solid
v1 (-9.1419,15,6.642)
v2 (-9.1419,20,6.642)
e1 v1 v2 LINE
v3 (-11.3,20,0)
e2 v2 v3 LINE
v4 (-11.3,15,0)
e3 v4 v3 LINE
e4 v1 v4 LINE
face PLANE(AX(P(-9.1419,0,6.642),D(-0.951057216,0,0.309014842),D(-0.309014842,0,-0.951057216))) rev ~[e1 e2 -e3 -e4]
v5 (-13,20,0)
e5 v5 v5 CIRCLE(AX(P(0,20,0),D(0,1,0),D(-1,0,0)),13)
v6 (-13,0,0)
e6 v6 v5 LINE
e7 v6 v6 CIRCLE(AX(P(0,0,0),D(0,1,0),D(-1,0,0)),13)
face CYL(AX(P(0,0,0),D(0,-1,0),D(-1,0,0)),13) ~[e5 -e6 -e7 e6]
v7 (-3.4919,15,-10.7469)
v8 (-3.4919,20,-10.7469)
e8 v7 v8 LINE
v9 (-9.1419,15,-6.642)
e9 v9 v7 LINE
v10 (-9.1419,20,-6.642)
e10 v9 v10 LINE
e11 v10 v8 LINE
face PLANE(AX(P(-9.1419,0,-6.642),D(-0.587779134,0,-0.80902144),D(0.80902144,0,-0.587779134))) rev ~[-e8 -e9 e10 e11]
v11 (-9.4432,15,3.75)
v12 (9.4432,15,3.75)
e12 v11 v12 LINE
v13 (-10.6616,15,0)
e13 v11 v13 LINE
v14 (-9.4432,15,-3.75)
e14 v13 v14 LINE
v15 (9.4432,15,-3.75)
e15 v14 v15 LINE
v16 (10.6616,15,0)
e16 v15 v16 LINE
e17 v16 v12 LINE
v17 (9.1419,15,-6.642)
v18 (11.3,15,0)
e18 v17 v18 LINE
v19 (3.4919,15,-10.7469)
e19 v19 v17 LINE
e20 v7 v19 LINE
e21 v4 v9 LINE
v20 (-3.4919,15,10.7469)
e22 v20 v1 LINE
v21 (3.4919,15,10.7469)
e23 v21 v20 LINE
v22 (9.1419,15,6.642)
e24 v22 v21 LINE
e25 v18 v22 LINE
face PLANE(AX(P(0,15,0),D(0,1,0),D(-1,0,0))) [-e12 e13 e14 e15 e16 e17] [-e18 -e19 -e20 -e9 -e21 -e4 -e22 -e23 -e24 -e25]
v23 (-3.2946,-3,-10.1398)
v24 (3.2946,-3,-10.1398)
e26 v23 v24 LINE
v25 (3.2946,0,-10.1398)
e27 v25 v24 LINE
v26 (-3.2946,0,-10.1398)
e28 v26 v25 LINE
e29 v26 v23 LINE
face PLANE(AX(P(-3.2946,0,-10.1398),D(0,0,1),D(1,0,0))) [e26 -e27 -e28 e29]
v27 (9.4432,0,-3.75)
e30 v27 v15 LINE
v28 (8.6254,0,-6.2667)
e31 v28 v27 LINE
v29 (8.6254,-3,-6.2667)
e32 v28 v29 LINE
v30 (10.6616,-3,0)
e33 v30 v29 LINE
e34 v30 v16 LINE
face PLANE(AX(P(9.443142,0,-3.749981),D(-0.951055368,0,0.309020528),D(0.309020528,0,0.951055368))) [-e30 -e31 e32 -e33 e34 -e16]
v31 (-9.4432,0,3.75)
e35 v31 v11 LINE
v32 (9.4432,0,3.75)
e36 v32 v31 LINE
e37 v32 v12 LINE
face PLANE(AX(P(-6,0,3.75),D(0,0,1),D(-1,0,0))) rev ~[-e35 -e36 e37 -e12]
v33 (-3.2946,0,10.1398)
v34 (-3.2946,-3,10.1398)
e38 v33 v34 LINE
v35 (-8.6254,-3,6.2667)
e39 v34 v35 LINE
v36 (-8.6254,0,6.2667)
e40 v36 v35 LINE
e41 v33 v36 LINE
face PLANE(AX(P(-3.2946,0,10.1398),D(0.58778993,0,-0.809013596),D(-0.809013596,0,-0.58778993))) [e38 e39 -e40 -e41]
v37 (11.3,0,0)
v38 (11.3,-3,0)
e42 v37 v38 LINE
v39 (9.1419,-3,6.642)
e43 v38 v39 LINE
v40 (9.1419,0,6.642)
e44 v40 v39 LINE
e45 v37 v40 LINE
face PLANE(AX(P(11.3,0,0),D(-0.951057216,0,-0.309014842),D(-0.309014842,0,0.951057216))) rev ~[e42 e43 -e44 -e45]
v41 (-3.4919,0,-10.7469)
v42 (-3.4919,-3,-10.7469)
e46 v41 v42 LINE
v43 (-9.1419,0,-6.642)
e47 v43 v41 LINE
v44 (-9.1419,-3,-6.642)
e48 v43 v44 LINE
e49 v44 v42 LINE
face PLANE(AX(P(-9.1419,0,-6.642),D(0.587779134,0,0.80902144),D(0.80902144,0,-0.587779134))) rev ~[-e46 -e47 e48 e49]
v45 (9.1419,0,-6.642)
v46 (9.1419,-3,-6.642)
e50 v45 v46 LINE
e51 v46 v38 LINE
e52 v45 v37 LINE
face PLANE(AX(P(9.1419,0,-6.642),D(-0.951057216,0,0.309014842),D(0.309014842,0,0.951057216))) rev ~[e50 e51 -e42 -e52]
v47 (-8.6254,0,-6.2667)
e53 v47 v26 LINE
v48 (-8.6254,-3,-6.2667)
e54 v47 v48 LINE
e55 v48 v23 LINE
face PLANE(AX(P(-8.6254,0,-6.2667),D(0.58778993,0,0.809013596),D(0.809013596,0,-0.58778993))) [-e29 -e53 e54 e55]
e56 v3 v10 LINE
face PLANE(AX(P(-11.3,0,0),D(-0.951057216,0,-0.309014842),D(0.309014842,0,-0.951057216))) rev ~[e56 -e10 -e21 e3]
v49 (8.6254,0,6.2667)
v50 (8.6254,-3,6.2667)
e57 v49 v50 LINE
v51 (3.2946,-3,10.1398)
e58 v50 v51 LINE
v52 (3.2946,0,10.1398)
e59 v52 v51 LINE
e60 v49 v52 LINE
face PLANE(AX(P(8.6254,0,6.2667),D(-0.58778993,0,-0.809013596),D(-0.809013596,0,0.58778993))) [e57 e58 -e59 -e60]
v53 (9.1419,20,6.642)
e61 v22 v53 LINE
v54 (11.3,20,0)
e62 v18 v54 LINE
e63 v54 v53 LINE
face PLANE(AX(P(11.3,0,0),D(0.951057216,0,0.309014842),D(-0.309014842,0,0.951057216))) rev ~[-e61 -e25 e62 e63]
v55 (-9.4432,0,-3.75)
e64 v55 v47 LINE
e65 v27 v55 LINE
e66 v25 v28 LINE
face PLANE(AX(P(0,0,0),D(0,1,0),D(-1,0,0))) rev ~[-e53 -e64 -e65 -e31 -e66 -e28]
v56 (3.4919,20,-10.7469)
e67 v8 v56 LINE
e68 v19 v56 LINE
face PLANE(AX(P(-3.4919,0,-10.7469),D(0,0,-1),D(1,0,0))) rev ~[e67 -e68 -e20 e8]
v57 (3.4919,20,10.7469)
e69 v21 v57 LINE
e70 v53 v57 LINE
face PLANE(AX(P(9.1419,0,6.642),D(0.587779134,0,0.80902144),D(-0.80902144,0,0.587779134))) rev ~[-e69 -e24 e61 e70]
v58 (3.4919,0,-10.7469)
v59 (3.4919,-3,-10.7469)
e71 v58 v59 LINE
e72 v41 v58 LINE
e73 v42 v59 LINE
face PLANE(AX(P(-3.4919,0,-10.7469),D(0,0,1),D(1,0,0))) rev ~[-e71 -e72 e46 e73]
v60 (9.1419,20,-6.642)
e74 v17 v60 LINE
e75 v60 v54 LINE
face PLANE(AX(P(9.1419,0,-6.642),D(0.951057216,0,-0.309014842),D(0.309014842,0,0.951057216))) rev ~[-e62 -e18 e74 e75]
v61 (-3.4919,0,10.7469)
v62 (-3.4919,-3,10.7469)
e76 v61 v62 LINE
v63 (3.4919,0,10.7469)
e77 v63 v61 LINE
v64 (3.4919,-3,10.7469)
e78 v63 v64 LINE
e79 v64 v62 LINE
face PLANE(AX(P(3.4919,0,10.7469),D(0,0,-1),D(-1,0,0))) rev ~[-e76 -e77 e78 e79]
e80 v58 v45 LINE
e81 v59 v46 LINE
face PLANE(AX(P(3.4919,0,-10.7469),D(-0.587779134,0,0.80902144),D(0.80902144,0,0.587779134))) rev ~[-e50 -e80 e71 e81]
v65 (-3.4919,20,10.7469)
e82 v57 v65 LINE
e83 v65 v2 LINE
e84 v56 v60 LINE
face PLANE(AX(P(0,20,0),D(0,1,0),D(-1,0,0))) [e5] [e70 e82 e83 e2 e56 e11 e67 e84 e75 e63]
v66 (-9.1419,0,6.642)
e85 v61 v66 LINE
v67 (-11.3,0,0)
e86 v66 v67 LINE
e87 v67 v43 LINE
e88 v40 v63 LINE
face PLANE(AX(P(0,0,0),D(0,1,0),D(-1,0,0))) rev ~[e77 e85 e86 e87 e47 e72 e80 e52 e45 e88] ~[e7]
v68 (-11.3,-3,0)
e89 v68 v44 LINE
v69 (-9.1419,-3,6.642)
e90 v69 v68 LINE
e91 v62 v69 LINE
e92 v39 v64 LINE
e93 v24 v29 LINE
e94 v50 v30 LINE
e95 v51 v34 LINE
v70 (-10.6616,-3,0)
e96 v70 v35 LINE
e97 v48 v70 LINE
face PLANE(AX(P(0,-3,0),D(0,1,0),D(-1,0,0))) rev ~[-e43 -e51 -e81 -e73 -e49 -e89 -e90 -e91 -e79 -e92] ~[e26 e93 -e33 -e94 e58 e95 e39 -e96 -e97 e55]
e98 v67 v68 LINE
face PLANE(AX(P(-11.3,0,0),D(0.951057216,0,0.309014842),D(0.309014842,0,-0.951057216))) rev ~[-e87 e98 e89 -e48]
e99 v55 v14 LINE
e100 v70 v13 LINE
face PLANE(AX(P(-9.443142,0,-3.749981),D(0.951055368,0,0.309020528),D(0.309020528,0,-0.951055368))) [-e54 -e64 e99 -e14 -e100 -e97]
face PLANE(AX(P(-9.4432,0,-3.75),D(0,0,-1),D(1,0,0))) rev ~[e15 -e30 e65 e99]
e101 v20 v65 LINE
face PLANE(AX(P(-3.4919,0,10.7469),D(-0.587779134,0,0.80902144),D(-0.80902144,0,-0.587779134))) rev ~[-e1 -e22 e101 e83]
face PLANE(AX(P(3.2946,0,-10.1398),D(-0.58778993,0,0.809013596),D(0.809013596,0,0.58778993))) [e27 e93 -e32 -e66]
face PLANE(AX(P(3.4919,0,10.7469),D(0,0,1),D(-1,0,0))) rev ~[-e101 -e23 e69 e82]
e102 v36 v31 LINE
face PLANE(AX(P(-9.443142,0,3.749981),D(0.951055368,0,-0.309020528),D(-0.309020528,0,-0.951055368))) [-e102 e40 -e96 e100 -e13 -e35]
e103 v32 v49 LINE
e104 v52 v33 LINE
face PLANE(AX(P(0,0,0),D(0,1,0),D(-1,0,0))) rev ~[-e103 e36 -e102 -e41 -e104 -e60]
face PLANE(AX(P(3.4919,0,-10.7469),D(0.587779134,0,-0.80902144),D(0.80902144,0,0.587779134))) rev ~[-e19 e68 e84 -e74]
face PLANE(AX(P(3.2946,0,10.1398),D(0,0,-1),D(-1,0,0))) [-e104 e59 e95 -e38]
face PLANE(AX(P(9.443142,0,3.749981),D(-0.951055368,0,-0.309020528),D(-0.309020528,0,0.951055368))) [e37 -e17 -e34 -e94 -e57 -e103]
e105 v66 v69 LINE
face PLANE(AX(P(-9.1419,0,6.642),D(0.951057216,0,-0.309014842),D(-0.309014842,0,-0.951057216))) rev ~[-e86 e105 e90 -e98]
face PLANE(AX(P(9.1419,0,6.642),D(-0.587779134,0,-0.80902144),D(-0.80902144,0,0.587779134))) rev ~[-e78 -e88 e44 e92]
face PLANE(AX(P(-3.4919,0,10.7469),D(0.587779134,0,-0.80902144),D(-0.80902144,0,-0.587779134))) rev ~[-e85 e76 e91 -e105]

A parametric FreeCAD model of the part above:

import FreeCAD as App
import Part
import Sketcher
from FreeCAD import Vector
Q = App.Units.Quantity


def add_polygon(sketch, points):
    """Adds a closed chain of lines whose ends are joined by coincident constraints."""
    first, n = sketch.GeometryCount, len(points)
    for a, b in zip(points, points[1:] + points[:1]):
        sketch.addGeometry(Part.LineSegment(App.Vector(*a, 0), App.Vector(*b, 0)), False)
    for i in range(n):
        sketch.addConstraint(Sketcher.Constraint("Coincident", first + i, 2, first + (i + 1) % n, 1))

doc = App.newDocument("Part")
body = doc.addObject("PartDesign::Body", "Body")
body.AllowCompound = True

# Sketch on XZ plane
sketch1 = body.newObject("Sketcher::SketchObject", "Sketch")
sketch1.AttachmentSupport = (doc.getObject("XZ_Plane"), [""])
sketch1.MapMode = "FlatFace"
add_polygon(sketch1, [(9, 7), (11, 0), (9, -7), (3, -11), (-3, -11), (-9, -7), (-11, 0), (-9, 7), (-3, 11), (3, 11)])  # lines 0-9
add_polygon(sketch1, [(9, -6), (11, 0), (9, 6), (3, 10), (-3, 10), (-9, 6), (-11, 0), (-9, -6), (-3, -10), (3, -10)])  # lines 10-19
sketch1.addConstraint([
    Sketcher.Constraint("Horizontal", 3),
    Sketcher.Constraint("Horizontal", 8),
    Sketcher.Constraint("Horizontal", 13),
    Sketcher.Constraint("Horizontal", 18),
    Sketcher.Constraint("Symmetric", 0, 2, 5, 2, -1, 1),
    Sketcher.Constraint("Symmetric", 1, 2, 6, 2, -1, 1),
    Sketcher.Constraint("Symmetric", 2, 2, 7, 2, -1, 1),
    Sketcher.Constraint("Symmetric", 4, 2, 9, 2, -1, 1),
    Sketcher.Constraint("Symmetric", 10, 2, 15, 2, -1, 1),
    Sketcher.Constraint("Symmetric", 11, 2, 16, 2, -1, 1),
    Sketcher.Constraint("Symmetric", 12, 2, 17, 2, -1, 1),
    Sketcher.Constraint("Symmetric", 14, 2, 19, 2, -1, 1),
    Sketcher.Constraint("Symmetric", 1, 2, 4, 2, -2),
    Sketcher.Constraint("Symmetric", 11, 2, 14, 2, -2),
    Sketcher.Constraint("PointOnObject", 0, 2, -1),
    Sketcher.Constraint("PointOnObject", 10, 2, -1),
    Sketcher.Constraint("Parallel", 4, 9),
    Sketcher.Constraint("Parallel", 6, 10),
    Sketcher.Constraint("Parallel", 9, 12),
    Sketcher.Constraint("Parallel", 7, 14),
    Sketcher.Constraint("Parallel", 14, 19),
    Sketcher.Constraint("Vertical", 3, 2, 7, 2),
    Sketcher.Constraint("Equal", 1, 2),
    Sketcher.Constraint("Equal", 11, 12),
    Sketcher.Constraint("Angle", 0, Q("-72.0001 deg")),
    Sketcher.Constraint("Angle", 2, Q("-144.0004 deg")),
    Sketcher.Constraint("DistanceX", -1, 1, 0, 2, 11.3),
    Sketcher.Constraint("DistanceX", 2, 2, 1, 2, 5.65),
    Sketcher.Constraint("DistanceX", 13, 2, 11, 2, 11.92),
    Sketcher.Constraint("DistanceX", 13, 2, 13, 1, 6.5892),
])
pad1 = body.newObject("PartDesign::Pad", "Pad")
pad1.Profile = sketch1
pad1.Length = 3

# Sketch on XZ plane
sketch2 = body.newObject("Sketcher::SketchObject", "Sketch001")
sketch2.AttachmentSupport = (doc.getObject("XZ_Plane"), [""])
sketch2.MapMode = "FlatFace"
sketch2.addGeometry(Part.Circle(Vector(0, 0, 0), Vector(0, 0, 1), 13), False)  # 0
add_polygon(sketch2, [(9, -7), (11, 0), (9, 7), (3, 11), (-3, 11), (-9, 7), (-11, 0), (-9, -7), (-3, -11), (3, -11)])  # lines 1-10
sketch2.addConstraint([
    Sketcher.Constraint("Horizontal", 4),
    Sketcher.Constraint("Horizontal", 9),
    Sketcher.Constraint("Coincident", 0, 3, -1, 1),
    Sketcher.Constraint("Symmetric", 1, 2, 6, 2, -1, 1),
    Sketcher.Constraint("Symmetric", 2, 2, 7, 2, -1, 1),
    Sketcher.Constraint("Symmetric", 3, 2, 8, 2, -1, 1),
    Sketcher.Constraint("Symmetric", 5, 2, 10, 2, -1, 1),
    Sketcher.Constraint("Symmetric", 2, 2, 5, 2, -2),
    Sketcher.Constraint("PointOnObject", 1, 2, -1),
    Sketcher.Constraint("Parallel", 5, 10),
    Sketcher.Constraint("Vertical", 4, 2, 8, 2),
    Sketcher.Constraint("Equal", 2, 3),
    Sketcher.Constraint("Diameter", 0, 26.0),
    Sketcher.Constraint("Angle", 1, Q("72.0001 deg")),
    Sketcher.Constraint("Angle", 3, Q("144.0004 deg")),
    Sketcher.Constraint("DistanceX", -1, 1, 1, 2, 11.3),
    Sketcher.Constraint("DistanceX", 3, 2, 2, 2, 5.65),
])
pad2 = body.newObject("PartDesign::Pad", "Pad001")
pad2.Profile = sketch2
pad2.Length = 20
pad2.Reversed = True

# Sketch on XZ plane
sketch3 = body.newObject("Sketcher::SketchObject", "Sketch002")
sketch3.AttachmentSupport = (doc.getObject("XZ_Plane"), [""])
sketch3.MapMode = "FlatFace"
add_polygon(sketch3, [(9.1, 6.6), (11.3, 0), (9.1, -6.6), (3.5, -10.7), (-3.5, -10.7), (-9.1, -6.6), (-11.3, 0), (-9.1, 6.6), (-3.5, 10.7), (3.5, 10.7)])  # lines 0-9
add_polygon(sketch3, [(-9.4, 3.7), (-10.7, 0), (-9.4, -3.8), (9.4, -3.7), (10.7, 0), (9.4, 3.8)])  # lines 10-15
sketch3.addConstraint([
    Sketcher.Constraint("Horizontal", 3),
    Sketcher.Constraint("Horizontal", 8),
    Sketcher.Constraint("Horizontal", 12),
    Sketcher.Constraint("Horizontal", 15),
    Sketcher.Constraint("Symmetric", 0, 2, 5, 2, -1, 1),
    Sketcher.Constraint("Symmetric", 1, 2, 6, 2, -1, 1),
    Sketcher.Constraint("Symmetric", 2, 2, 7, 2, -1, 1),
    Sketcher.Constraint("Symmetric", 4, 2, 9, 2, -1, 1),
    Sketcher.Constraint("Symmetric", 10, 2, 13, 2, -1, 1),
    Sketcher.Constraint("Symmetric", 11, 2, 14, 2, -1, 1),
    Sketcher.Constraint("Symmetric", 1, 2, 4, 2, -2),
    Sketcher.Constraint("PointOnObject", 0, 2, -1),
    Sketcher.Constraint("PointOnObject", 10, 2, -1),
    Sketcher.Constraint("Parallel", 4, 9),
    Sketcher.Constraint("Parallel", 6, 10),
    Sketcher.Constraint("Parallel", 5, 11),
    Sketcher.Constraint("Parallel", 10, 13),
    Sketcher.Constraint("Vertical", 3, 2, 7, 2),
    Sketcher.Constraint("Equal", 1, 2),
    Sketcher.Constraint("DistanceY", 12, 2, 14, 2, 7.5),
    Sketcher.Constraint("Angle", 0, Q("-72.0001 deg")),
    Sketcher.Constraint("Angle", 2, Q("-144.0004 deg")),
    Sketcher.Constraint("DistanceX", -1, 1, 0, 2, 11.3),
    Sketcher.Constraint("DistanceX", 2, 2, 1, 2, 5.65),
    Sketcher.Constraint("DistanceX", 12, 1, 12, 2, 18.8864),
])
pad3 = body.newObject("PartDesign::Pad", "Pad002")
pad3.Profile = sketch3
pad3.Length = 15
pad3.Reversed = True

doc.recompute()
